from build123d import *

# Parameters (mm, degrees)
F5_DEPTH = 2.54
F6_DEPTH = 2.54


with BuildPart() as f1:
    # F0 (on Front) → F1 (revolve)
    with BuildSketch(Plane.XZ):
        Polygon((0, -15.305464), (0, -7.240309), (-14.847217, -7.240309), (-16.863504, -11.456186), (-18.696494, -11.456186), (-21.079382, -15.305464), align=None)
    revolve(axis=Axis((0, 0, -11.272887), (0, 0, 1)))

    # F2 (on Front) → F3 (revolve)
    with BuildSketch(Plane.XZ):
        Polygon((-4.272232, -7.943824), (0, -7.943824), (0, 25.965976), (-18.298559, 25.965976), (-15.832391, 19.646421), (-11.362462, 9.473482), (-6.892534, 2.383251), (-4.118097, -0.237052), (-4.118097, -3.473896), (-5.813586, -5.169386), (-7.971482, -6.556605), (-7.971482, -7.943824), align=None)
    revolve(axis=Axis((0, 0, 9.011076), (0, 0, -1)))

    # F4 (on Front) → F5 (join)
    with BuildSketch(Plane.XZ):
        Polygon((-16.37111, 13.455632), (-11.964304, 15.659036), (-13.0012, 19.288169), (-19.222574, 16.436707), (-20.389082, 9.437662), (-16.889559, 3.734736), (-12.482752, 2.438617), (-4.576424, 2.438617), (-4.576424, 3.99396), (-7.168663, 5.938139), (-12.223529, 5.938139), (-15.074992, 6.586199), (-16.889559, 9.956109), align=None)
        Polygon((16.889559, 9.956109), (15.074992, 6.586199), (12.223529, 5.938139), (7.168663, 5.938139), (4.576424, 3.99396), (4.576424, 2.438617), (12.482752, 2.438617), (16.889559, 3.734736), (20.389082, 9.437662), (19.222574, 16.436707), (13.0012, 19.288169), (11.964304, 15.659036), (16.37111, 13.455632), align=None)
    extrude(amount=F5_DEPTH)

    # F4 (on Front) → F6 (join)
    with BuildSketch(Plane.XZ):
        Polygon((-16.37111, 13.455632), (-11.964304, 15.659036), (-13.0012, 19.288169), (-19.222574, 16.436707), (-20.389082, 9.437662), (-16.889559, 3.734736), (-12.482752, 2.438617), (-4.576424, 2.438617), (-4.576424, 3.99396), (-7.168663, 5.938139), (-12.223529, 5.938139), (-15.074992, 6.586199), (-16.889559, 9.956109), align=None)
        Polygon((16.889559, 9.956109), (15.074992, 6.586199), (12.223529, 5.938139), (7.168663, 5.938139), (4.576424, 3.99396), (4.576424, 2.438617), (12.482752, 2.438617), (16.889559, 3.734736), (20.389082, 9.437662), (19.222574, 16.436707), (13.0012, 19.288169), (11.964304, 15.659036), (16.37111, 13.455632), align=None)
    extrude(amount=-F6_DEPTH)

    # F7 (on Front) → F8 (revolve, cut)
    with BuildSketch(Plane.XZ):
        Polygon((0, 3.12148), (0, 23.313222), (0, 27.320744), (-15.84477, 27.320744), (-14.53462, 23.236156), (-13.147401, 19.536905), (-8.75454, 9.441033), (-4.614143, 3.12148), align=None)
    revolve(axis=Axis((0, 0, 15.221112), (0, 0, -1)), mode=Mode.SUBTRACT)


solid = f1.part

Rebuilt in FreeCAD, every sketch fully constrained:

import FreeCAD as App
import Part
import Sketcher

V = App.Vector
Q = App.Units.Quantity


def add_polygon(sketch, points):
    """Adds a closed chain of lines whose ends are joined by coincident constraints."""
    first, n = sketch.GeometryCount, len(points)
    for a, b in zip(points, points[1:] + points[:1]):
        sketch.addGeometry(Part.LineSegment(App.Vector(*a, 0), App.Vector(*b, 0)), False)
    for i in range(n):
        sketch.addConstraint(Sketcher.Constraint("Coincident", first + i, 2, first + (i + 1) % n, 1))

doc = App.newDocument("Part")
body = doc.addObject("PartDesign::Body", "Body")

sketch1 = body.newObject("Sketcher::SketchObject", "Sketch")
sketch1.AttachmentSupport = (doc.getObject("XZ_Plane"), [""])
sketch1.MapMode = "FlatFace"
add_polygon(sketch1, [(0, -15.3), (0, -7.2), (-14.8, -7.2), (-16.9, -11.5), (-18.7, -11.5), (-21.1, -15.3)])
sketch1.addConstraint(Sketcher.Constraint("Vertical", 0))
sketch1.addConstraint(Sketcher.Constraint("Horizontal", 1))
sketch1.addConstraint(Sketcher.Constraint("Horizontal", 3))
sketch1.addConstraint(Sketcher.Constraint("Horizontal", 5))
sketch1.addConstraint(Sketcher.Constraint("PointOnObject", 0, 2, -2))
sketch1.addConstraint(Sketcher.Constraint("DistanceX", 3, 2, 3, 1, Q("1.83299 mm")))
sketch1.addConstraint(Sketcher.Constraint("DistanceX", 5, 1, 5, 2, Q("21.079382 mm")))
sketch1.addConstraint(Sketcher.Constraint("Distance", 4, Q("4.527151 mm")))
sketch1.addConstraint(Sketcher.Constraint("DistanceX", 1, 2, 1, 1, Q("14.847217 mm")))
sketch1.addConstraint(Sketcher.Constraint("DistanceY", 0, 1, 0, 2, Q("8.065155 mm")))
sketch1.addConstraint(Sketcher.Constraint("DistanceY", 0, 2, -1, 1, Q("7.240309 mm")))
sketch1.addConstraint(Sketcher.Constraint("DistanceY", 4, 2, 3, 2, Q("3.849278 mm")))
revolution = body.newObject("PartDesign::Revolution", "Revolution")
revolution.Profile = sketch1
revolution.ReferenceAxis = (sketch1, ["V_Axis"])
revolution.Angle = 360

sketch2 = body.newObject("Sketcher::SketchObject", "Sketch001")
sketch2.AttachmentSupport = (doc.getObject("XZ_Plane"), [""])
sketch2.MapMode = "FlatFace"
add_polygon(sketch2, [(0, -7.9), (0, 26), (-18.3, 26), (-15.8, 19.6), (-11.4, 9.5), (-6.9, 2.4), (-4.1, -0.2), (-4.1, -3.5), (-5.8, -5.2), (-8, -6.6), (-8, -7.9)])
sketch2.addConstraint(Sketcher.Constraint("Vertical", 0))
sketch2.addConstraint(Sketcher.Constraint("Horizontal", 1))
sketch2.addConstraint(Sketcher.Constraint("Vertical", 6))
sketch2.addConstraint(Sketcher.Constraint("Vertical", 9))
sketch2.addConstraint(Sketcher.Constraint("Horizontal", 10))
sketch2.addConstraint(Sketcher.Constraint("PointOnObject", 0, 2, -2))
sketch2.addConstraint(Sketcher.Constraint("Angle", 7, Q("-134.999983 deg")))
sketch2.addConstraint(Sketcher.Constraint("DistanceY", 0, 1, 0, 2, Q("33.9098 mm")))
sketch2.addConstraint(Sketcher.Constraint("DistanceX", 1, 2, 1, 1, Q("18.298559 mm")))
sketch2.addConstraint(Sketcher.Constraint("DistanceY", 9, 2, 9, 1, Q("1.387219 mm")))
sketch2.addConstraint(Sketcher.Constraint("Distance", 3, Q("11.111658 mm")))
sketch2.addConstraint(Sketcher.Constraint("DistanceX", 10, 1, 10, 2, Q("7.971482 mm")))
sketch2.addConstraint(Sketcher.Constraint("DistanceY", 6, 2, 6, 1, Q("3.236844 mm")))
sketch2.addConstraint(Sketcher.Constraint("DistanceX", 2, 2, -1, 1, Q("15.832391 mm")))
sketch2.addConstraint(Sketcher.Constraint("DistanceY", -1, 1, 2, 2, Q("19.646421 mm")))
sketch2.addConstraint(Sketcher.Constraint("DistanceY", -1, 1, 4, 2, Q("2.383251 mm")))
sketch2.addConstraint(Sketcher.Constraint("DistanceX", 2, 2, 3, 2, Q("4.469929 mm")))
sketch2.addConstraint(Sketcher.Constraint("DistanceX", 3, 2, 4, 2, Q("4.469928 mm")))
sketch2.addConstraint(Sketcher.Constraint("DistanceY", 5, 2, 0, 2, Q("26.203028 mm")))
sketch2.addConstraint(Sketcher.Constraint("DistanceX", 7, 2, 6, 2, Q("1.695489 mm")))
sketch2.addConstraint(Sketcher.Constraint("DistanceX", 4, 2, 7, 2, Q("1.078948 mm")))
sketch2.addConstraint(Sketcher.Constraint("Distance", 2, Q("6.783713 mm")))
revolution2 = body.newObject("PartDesign::Revolution", "Revolution001")
revolution2.Profile = sketch2
revolution2.ReferenceAxis = (sketch2, ["V_Axis"])
revolution2.Angle = 360

sketch3 = body.newObject("Sketcher::SketchObject", "Sketch002")
sketch3.AttachmentSupport = (doc.getObject("XZ_Plane"), [""])
sketch3.MapMode = "FlatFace"
add_polygon(sketch3, [(-16.4, 13.5), (-12, 15.7), (-13, 19.3), (-19.2, 16.4), (-20.4, 9.4), (-16.9, 3.7), (-12.5, 2.4), (-4.6, 2.4), (-4.6, 4), (-7.2, 5.9), (-12.2, 5.9), (-15.1, 6.6), (-16.9, 10)])
add_polygon(sketch3, [(16.9, 10), (15.1, 6.6), (12.2, 5.9), (7.2, 5.9), (4.6, 4), (4.6, 2.4), (12.5, 2.4), (16.9, 3.7), (20.4, 9.4), (19.2, 16.4), (13, 19.3), (12, 15.7), (16.4, 13.5)])
sketch3.addConstraint(Sketcher.Constraint("Horizontal", 6))
sketch3.addConstraint(Sketcher.Constraint("Vertical", 7))
sketch3.addConstraint(Sketcher.Constraint("Horizontal", 9))
sketch3.addConstraint(Sketcher.Constraint("Horizontal", 15))
sketch3.addConstraint(Sketcher.Constraint("Vertical", 17))
sketch3.addConstraint(Sketcher.Constraint("Horizontal", 18))
sketch3.addConstraint(Sketcher.Constraint("Symmetric", 10, 2, 13, 2, -2))
sketch3.addConstraint(Sketcher.Constraint("Symmetric", 9, 2, 14, 2, -2))
sketch3.addConstraint(Sketcher.Constraint("Symmetric", 7, 2, 16, 2, -2))
sketch3.addConstraint(Sketcher.Constraint("Symmetric", 5, 2, 18, 2, -2))
sketch3.addConstraint(Sketcher.Constraint("Symmetric", 4, 2, 19, 2, -2))
sketch3.addConstraint(Sketcher.Constraint("Symmetric", 3, 2, 20, 2, -2))
sketch3.addConstraint(Sketcher.Constraint("Symmetric", 2, 2, 21, 2, -2))
sketch3.addConstraint(Sketcher.Constraint("Symmetric", 1, 2, 22, 2, -2))
sketch3.addConstraint(Sketcher.Constraint("Symmetric", 0, 2, 23, 2, -2))
sketch3.addConstraint(Sketcher.Constraint("Symmetric", 12, 2, 24, 2, -2))
sketch3.addConstraint(Sketcher.Constraint("Symmetric", 11, 2, 25, 2, -2))
sketch3.addConstraint(Sketcher.Constraint("Vertical", 4, 2, 11, 2))
sketch3.addConstraint(Sketcher.Constraint("Equal", 9, 15))
sketch3.addConstraint(Sketcher.Constraint("Distance", 8, Q("3.240299 mm")))
sketch3.addConstraint(Sketcher.Constraint("DistanceX", 1, 2, -1, 1, Q("13.0012 mm")))
sketch3.addConstraint(Sketcher.Constraint("DistanceY", -1, 1, 10, 2, Q("6.586199 mm")))
sketch3.addConstraint(Sketcher.Constraint("DistanceY", 4, 2, 0, 2, Q("11.9243 mm")))
sketch3.addConstraint(Sketcher.Constraint("Distance", 0, Q("4.926959 mm")))
sketch3.addConstraint(Sketcher.Constraint("Distance", 3, Q("7.095588 mm")))
sketch3.addConstraint(Sketcher.Constraint("Distance", 4, Q("6.691041 mm")))
sketch3.addConstraint(Sketcher.Constraint("Distance", 5, Q("4.59346 mm")))
sketch3.addConstraint(Sketcher.Constraint("Distance", 10, Q("2.924179 mm")))
sketch3.addConstraint(Sketcher.Constraint("Distance", 12, Q("3.537718 mm")))
sketch3.addConstraint(Sketcher.Constraint("DistanceX", 6, 1, 6, 2, Q("7.906328 mm")))
sketch3.addConstraint(Sketcher.Constraint("DistanceX", 9, 2, 9, 1, Q("5.054866 mm")))
sketch3.addConstraint(Sketcher.Constraint("DistanceY", 7, 1, 7, 2, Q("1.555343 mm")))
sketch3.addConstraint(Sketcher.Constraint("DistanceY", -1, 1, 1, 2, Q("19.288169 mm")))
sketch3.addConstraint(Sketcher.Constraint("DistanceX", 3, 2, -1, 1, Q("20.389082 mm")))
sketch3.addConstraint(Sketcher.Constraint("DistanceX", 4, 2, -1, 1, Q("16.889559 mm")))
sketch3.addConstraint(Sketcher.Constraint("DistanceY", -1, 1, 7, 2, Q("3.99396 mm")))
sketch3.addConstraint(Sketcher.Constraint("DistanceY", -1, 1, 8, 2, Q("5.938139 mm")))
sketch3.addConstraint(Sketcher.Constraint("DistanceX", 9, 2, -1, 1, Q("12.223529 mm")))
sketch3.addConstraint(Sketcher.Constraint("DistanceY", -1, 1, 11, 2, Q("9.956109 mm")))
sketch3.addConstraint(Sketcher.Constraint("DistanceX", 12, 2, -1, 1, Q("16.37111 mm")))
sketch3.addConstraint(Sketcher.Constraint("DistanceX", 2, 2, 0, 2, Q("7.25827 mm")))
pad1 = body.newObject("PartDesign::Pad", "Pad")
pad1.Profile = sketch3
pad1.Length = Q("0.1 in")

sketch4 = body.newObject("Sketcher::SketchObject", "Sketch003")
sketch4.AttachmentSupport = (doc.getObject("XZ_Plane"), [""])
sketch4.MapMode = "FlatFace"
add_polygon(sketch4, [(-16.4, 13.5), (-12, 15.7), (-13, 19.3), (-19.2, 16.4), (-20.4, 9.4), (-16.9, 3.7), (-12.5, 2.4), (-4.6, 2.4), (-4.6, 4), (-7.2, 5.9), (-12.2, 5.9), (-15.1, 6.6), (-16.9, 10)])
add_polygon(sketch4, [(16.9, 10), (15.1, 6.6), (12.2, 5.9), (7.2, 5.9), (4.6, 4), (4.6, 2.4), (12.5, 2.4), (16.9, 3.7), (20.4, 9.4), (19.2, 16.4), (13, 19.3), (12, 15.7), (16.4, 13.5)])
sketch4.addConstraint(Sketcher.Constraint("Horizontal", 6))
sketch4.addConstraint(Sketcher.Constraint("Vertical", 7))
sketch4.addConstraint(Sketcher.Constraint("Horizontal", 9))
sketch4.addConstraint(Sketcher.Constraint("Horizontal", 15))
sketch4.addConstraint(Sketcher.Constraint("Vertical", 17))
sketch4.addConstraint(Sketcher.Constraint("Horizontal", 18))
sketch4.addConstraint(Sketcher.Constraint("Symmetric", 10, 2, 13, 2, -2))
sketch4.addConstraint(Sketcher.Constraint("Symmetric", 9, 2, 14, 2, -2))
sketch4.addConstraint(Sketcher.Constraint("Symmetric", 7, 2, 16, 2, -2))
sketch4.addConstraint(Sketcher.Constraint("Symmetric", 5, 2, 18, 2, -2))
sketch4.addConstraint(Sketcher.Constraint("Symmetric", 4, 2, 19, 2, -2))
sketch4.addConstraint(Sketcher.Constraint("Symmetric", 3, 2, 20, 2, -2))
sketch4.addConstraint(Sketcher.Constraint("Symmetric", 2, 2, 21, 2, -2))
sketch4.addConstraint(Sketcher.Constraint("Symmetric", 1, 2, 22, 2, -2))
sketch4.addConstraint(Sketcher.Constraint("Symmetric", 0, 2, 23, 2, -2))
sketch4.addConstraint(Sketcher.Constraint("Symmetric", 12, 2, 24, 2, -2))
sketch4.addConstraint(Sketcher.Constraint("Symmetric", 11, 2, 25, 2, -2))
sketch4.addConstraint(Sketcher.Constraint("Vertical", 4, 2, 11, 2))
sketch4.addConstraint(Sketcher.Constraint("Equal", 9, 15))
sketch4.addConstraint(Sketcher.Constraint("Distance", 8, Q("3.240299 mm")))
sketch4.addConstraint(Sketcher.Constraint("DistanceX", 1, 2, -1, 1, Q("13.0012 mm")))
sketch4.addConstraint(Sketcher.Constraint("DistanceY", -1, 1, 10, 2, Q("6.586199 mm")))
sketch4.addConstraint(Sketcher.Constraint("DistanceY", 4, 2, 0, 2, Q("11.9243 mm")))
sketch4.addConstraint(Sketcher.Constraint("Distance", 0, Q("4.926959 mm")))
sketch4.addConstraint(Sketcher.Constraint("Distance", 3, Q("7.095588 mm")))
sketch4.addConstraint(Sketcher.Constraint("Distance", 4, Q("6.691041 mm")))
sketch4.addConstraint(Sketcher.Constraint("Distance", 5, Q("4.59346 mm")))
sketch4.addConstraint(Sketcher.Constraint("Distance", 10, Q("2.924179 mm")))
sketch4.addConstraint(Sketcher.Constraint("Distance", 12, Q("3.537718 mm")))
sketch4.addConstraint(Sketcher.Constraint("DistanceX", 6, 1, 6, 2, Q("7.906328 mm")))
sketch4.addConstraint(Sketcher.Constraint("DistanceX", 9, 2, 9, 1, Q("5.054866 mm")))
sketch4.addConstraint(Sketcher.Constraint("DistanceY", 7, 1, 7, 2, Q("1.555343 mm")))
sketch4.addConstraint(Sketcher.Constraint("DistanceY", -1, 1, 1, 2, Q("19.288169 mm")))
sketch4.addConstraint(Sketcher.Constraint("DistanceX", 3, 2, -1, 1, Q("20.389082 mm")))
sketch4.addConstraint(Sketcher.Constraint("DistanceX", 4, 2, -1, 1, Q("16.889559 mm")))
sketch4.addConstraint(Sketcher.Constraint("DistanceY", -1, 1, 7, 2, Q("3.99396 mm")))
sketch4.addConstraint(Sketcher.Constraint("DistanceY", -1, 1, 8, 2, Q("5.938139 mm")))
sketch4.addConstraint(Sketcher.Constraint("DistanceX", 9, 2, -1, 1, Q("12.223529 mm")))
sketch4.addConstraint(Sketcher.Constraint("DistanceY", -1, 1, 11, 2, Q("9.956109 mm")))
sketch4.addConstraint(Sketcher.Constraint("DistanceX", 12, 2, -1, 1, Q("16.37111 mm")))
sketch4.addConstraint(Sketcher.Constraint("DistanceX", 2, 2, 0, 2, Q("7.25827 mm")))
pad2 = body.newObject("PartDesign::Pad", "Pad001")
pad2.Profile = sketch4
pad2.Length = Q("0.1 in")
pad2.Reversed = True

sketch5 = body.newObject("Sketcher::SketchObject", "Sketch004")
sketch5.AttachmentSupport = (doc.getObject("XZ_Plane"), [""])
sketch5.MapMode = "FlatFace"
add_polygon(sketch5, [(0, 3.1), (0, 27.3), (-15.8, 27.3), (-14.5, 23.2), (-13.1, 19.5), (-8.8, 9.4), (-4.6, 3.1)])
sketch5.addConstraint(Sketcher.Constraint("Vertical", 0))
sketch5.addConstraint(Sketcher.Constraint("Horizontal", 1))
sketch5.addConstraint(Sketcher.Constraint("Horizontal", 6))
sketch5.addConstraint(Sketcher.Constraint("PointOnObject", 0, 2, -2))
sketch5.addConstraint(Sketcher.Constraint("Distance", 3, Q("3.950802 mm")))
sketch5.addConstraint(Sketcher.Constraint("DistanceX", 1, 2, 1, 1, Q("15.84477 mm")))
sketch5.addConstraint(Sketcher.Constraint("DistanceX", 3, 2, -1, 1, Q("13.147401 mm")))
sketch5.addConstraint(Sketcher.Constraint("Distance", 4, Q("11.010171 mm")))
sketch5.addConstraint(Sketcher.Constraint("DistanceX", 6, 1, 6, 2, Q("4.614143 mm")))
sketch5.addConstraint(Sketcher.Constraint("DistanceY", 0, 1, 0, 2, Q("24.199264 mm")))
sketch5.addConstraint(Sketcher.Constraint("DistanceX", 2, 2, -1, 1, Q("14.53462 mm")))
sketch5.addConstraint(Sketcher.Constraint("DistanceX", 4, 2, -1, 1, Q("8.75454 mm")))
sketch5.addConstraint(Sketcher.Constraint("DistanceY", -1, 1, 5, 2, Q("3.12148 mm")))
sketch5.addConstraint(Sketcher.Constraint("DistanceY", 3, 2, 1, 2, Q("7.783839 mm")))
groove = body.newObject("PartDesign::Groove", "Groove")
groove.Profile = sketch5
groove.ReferenceAxis = (sketch5, ["V_Axis"])
groove.Angle = 360

doc.recompute()
